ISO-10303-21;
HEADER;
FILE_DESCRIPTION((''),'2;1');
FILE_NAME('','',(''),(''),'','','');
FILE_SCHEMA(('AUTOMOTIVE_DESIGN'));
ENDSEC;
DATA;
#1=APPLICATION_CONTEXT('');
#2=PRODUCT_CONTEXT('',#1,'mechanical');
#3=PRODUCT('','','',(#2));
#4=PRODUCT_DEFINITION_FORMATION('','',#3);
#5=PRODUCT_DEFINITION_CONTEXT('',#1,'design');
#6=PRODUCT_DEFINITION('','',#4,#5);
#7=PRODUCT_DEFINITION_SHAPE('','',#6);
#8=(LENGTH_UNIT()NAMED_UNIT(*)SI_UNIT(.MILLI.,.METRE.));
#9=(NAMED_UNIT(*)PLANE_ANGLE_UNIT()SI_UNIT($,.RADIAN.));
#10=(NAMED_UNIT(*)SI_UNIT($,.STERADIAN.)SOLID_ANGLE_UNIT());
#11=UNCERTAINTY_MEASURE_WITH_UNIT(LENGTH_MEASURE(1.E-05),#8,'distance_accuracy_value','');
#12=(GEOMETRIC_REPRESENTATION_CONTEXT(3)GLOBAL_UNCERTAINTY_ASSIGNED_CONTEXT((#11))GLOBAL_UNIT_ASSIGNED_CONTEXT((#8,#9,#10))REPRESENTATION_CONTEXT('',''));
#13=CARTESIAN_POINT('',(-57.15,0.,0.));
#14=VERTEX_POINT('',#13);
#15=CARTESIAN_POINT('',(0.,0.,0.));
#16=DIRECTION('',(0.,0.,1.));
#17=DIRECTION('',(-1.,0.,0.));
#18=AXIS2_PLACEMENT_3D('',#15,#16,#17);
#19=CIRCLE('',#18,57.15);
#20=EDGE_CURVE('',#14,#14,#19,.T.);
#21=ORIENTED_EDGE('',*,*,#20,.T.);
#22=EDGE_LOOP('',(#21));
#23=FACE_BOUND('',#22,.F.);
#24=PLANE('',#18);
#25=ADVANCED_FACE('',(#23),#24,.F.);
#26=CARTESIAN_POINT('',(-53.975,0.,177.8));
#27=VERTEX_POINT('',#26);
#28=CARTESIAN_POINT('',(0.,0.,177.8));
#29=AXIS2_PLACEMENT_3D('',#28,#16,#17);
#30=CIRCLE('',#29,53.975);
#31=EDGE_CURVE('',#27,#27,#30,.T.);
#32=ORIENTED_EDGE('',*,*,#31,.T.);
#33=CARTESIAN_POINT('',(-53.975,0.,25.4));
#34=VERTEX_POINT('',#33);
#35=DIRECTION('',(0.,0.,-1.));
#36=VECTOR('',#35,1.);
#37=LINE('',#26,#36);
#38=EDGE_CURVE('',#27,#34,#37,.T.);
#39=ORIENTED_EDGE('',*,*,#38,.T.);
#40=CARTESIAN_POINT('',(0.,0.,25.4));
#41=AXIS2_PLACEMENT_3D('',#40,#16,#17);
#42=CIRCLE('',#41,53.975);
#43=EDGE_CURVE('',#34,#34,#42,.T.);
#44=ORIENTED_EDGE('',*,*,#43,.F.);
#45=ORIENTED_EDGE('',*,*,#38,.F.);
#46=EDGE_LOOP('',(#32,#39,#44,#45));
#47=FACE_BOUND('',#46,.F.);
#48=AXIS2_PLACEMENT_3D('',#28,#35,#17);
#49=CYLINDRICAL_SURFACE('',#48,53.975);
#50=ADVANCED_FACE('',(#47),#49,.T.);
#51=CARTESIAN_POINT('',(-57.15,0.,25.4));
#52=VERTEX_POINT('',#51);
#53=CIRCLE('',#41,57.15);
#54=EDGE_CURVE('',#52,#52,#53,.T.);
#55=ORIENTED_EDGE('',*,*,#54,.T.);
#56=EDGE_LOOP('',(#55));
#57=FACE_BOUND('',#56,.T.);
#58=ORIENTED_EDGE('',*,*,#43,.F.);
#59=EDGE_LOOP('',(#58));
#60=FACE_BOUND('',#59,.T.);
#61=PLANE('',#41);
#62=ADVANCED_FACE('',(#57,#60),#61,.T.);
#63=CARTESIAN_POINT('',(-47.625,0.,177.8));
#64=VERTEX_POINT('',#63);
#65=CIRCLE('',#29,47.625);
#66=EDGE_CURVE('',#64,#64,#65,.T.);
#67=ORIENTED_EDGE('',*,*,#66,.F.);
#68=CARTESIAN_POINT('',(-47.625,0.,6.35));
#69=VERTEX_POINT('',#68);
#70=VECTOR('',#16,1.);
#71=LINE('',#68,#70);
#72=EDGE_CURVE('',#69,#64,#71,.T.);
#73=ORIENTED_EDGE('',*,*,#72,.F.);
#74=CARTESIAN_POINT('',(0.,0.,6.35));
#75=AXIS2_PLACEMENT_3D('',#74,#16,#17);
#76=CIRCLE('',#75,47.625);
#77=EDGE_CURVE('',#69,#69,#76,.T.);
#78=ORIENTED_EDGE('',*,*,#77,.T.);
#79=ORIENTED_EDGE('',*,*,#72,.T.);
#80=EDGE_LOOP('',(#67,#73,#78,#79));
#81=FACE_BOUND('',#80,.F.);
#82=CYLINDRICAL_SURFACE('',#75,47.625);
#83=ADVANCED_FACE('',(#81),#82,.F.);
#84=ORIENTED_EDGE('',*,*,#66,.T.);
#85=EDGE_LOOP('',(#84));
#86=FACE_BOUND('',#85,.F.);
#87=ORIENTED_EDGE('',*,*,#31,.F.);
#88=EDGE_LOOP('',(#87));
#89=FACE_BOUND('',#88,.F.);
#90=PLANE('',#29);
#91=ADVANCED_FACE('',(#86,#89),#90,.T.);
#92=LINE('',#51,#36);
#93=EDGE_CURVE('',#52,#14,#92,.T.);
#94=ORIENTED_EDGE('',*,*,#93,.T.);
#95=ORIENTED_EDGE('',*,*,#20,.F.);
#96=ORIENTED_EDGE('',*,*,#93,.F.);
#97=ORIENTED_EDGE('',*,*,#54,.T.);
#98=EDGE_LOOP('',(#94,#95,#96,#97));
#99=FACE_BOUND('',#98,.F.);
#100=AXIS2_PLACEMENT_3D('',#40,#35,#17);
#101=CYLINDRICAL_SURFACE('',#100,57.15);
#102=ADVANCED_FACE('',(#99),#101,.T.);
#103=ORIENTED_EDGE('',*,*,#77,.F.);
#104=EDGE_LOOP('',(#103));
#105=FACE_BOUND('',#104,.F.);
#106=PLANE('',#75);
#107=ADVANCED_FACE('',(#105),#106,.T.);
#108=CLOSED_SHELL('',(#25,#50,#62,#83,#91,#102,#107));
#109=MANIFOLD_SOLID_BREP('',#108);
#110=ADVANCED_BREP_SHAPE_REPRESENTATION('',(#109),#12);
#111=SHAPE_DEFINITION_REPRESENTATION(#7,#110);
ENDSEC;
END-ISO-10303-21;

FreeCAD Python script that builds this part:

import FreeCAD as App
import Part
import Sketcher

V = App.Vector
Q = App.Units.Quantity


def add_polygon(sketch, points):
    """Adds a closed chain of lines whose ends are joined by coincident constraints."""
    first, n = sketch.GeometryCount, len(points)
    for a, b in zip(points, points[1:] + points[:1]):
        sketch.addGeometry(Part.LineSegment(App.Vector(*a, 0), App.Vector(*b, 0)), False)
    for i in range(n):
        sketch.addConstraint(Sketcher.Constraint("Coincident", first + i, 2, first + (i + 1) % n, 1))

doc = App.newDocument("Part")
body = doc.addObject("PartDesign::Body", "Body")

# Sketch on XZ plane
sketch1 = body.newObject("Sketcher::SketchObject", "Sketch")
sketch1.AttachmentSupport = (doc.getObject("XZ_Plane"), [""])
sketch1.MapMode = "FlatFace"
add_polygon(sketch1, [(-57.1, 0), (0, 0), (0, 6.3), (-47.6, 6.3), (-47.6, 177.8), (-54, 177.8), (-54, 25.4), (-57.1, 25.4)])  # lines 0-7
sketch1.addConstraint([
    Sketcher.Constraint("Horizontal", 0),
    Sketcher.Constraint("Vertical", 1),
    Sketcher.Constraint("Horizontal", 2),
    Sketcher.Constraint("Vertical", 3),
    Sketcher.Constraint("Horizontal", 4),
    Sketcher.Constraint("Vertical", 5),
    Sketcher.Constraint("Horizontal", 6),
    Sketcher.Constraint("Vertical", 7),
    Sketcher.Constraint("Coincident", 0, 2, -1, 1),
    Sketcher.Constraint("Equal", 4, 1),
    Sketcher.Constraint("DistanceY", 5, 2, 5, 1, Q("6 in")),
    Sketcher.Constraint("DistanceY", 7, 2, 7, 1, Q("1 in")),
    Sketcher.Constraint("DistanceX", 0, 1, 0, 2, Q("2.25 in")),
    Sketcher.Constraint("DistanceX", 4, 2, 4, 1, Q("0.25 in")),
    Sketcher.Constraint("DistanceX", 2, 2, 2, 1, Q("1.875 in")),
])
revolution = body.newObject("PartDesign::Revolution", "Revolution")
revolution.Profile = sketch1
revolution.ReferenceAxis = (sketch1, ["V_Axis"])
revolution.Angle = 360

doc.recompute()
